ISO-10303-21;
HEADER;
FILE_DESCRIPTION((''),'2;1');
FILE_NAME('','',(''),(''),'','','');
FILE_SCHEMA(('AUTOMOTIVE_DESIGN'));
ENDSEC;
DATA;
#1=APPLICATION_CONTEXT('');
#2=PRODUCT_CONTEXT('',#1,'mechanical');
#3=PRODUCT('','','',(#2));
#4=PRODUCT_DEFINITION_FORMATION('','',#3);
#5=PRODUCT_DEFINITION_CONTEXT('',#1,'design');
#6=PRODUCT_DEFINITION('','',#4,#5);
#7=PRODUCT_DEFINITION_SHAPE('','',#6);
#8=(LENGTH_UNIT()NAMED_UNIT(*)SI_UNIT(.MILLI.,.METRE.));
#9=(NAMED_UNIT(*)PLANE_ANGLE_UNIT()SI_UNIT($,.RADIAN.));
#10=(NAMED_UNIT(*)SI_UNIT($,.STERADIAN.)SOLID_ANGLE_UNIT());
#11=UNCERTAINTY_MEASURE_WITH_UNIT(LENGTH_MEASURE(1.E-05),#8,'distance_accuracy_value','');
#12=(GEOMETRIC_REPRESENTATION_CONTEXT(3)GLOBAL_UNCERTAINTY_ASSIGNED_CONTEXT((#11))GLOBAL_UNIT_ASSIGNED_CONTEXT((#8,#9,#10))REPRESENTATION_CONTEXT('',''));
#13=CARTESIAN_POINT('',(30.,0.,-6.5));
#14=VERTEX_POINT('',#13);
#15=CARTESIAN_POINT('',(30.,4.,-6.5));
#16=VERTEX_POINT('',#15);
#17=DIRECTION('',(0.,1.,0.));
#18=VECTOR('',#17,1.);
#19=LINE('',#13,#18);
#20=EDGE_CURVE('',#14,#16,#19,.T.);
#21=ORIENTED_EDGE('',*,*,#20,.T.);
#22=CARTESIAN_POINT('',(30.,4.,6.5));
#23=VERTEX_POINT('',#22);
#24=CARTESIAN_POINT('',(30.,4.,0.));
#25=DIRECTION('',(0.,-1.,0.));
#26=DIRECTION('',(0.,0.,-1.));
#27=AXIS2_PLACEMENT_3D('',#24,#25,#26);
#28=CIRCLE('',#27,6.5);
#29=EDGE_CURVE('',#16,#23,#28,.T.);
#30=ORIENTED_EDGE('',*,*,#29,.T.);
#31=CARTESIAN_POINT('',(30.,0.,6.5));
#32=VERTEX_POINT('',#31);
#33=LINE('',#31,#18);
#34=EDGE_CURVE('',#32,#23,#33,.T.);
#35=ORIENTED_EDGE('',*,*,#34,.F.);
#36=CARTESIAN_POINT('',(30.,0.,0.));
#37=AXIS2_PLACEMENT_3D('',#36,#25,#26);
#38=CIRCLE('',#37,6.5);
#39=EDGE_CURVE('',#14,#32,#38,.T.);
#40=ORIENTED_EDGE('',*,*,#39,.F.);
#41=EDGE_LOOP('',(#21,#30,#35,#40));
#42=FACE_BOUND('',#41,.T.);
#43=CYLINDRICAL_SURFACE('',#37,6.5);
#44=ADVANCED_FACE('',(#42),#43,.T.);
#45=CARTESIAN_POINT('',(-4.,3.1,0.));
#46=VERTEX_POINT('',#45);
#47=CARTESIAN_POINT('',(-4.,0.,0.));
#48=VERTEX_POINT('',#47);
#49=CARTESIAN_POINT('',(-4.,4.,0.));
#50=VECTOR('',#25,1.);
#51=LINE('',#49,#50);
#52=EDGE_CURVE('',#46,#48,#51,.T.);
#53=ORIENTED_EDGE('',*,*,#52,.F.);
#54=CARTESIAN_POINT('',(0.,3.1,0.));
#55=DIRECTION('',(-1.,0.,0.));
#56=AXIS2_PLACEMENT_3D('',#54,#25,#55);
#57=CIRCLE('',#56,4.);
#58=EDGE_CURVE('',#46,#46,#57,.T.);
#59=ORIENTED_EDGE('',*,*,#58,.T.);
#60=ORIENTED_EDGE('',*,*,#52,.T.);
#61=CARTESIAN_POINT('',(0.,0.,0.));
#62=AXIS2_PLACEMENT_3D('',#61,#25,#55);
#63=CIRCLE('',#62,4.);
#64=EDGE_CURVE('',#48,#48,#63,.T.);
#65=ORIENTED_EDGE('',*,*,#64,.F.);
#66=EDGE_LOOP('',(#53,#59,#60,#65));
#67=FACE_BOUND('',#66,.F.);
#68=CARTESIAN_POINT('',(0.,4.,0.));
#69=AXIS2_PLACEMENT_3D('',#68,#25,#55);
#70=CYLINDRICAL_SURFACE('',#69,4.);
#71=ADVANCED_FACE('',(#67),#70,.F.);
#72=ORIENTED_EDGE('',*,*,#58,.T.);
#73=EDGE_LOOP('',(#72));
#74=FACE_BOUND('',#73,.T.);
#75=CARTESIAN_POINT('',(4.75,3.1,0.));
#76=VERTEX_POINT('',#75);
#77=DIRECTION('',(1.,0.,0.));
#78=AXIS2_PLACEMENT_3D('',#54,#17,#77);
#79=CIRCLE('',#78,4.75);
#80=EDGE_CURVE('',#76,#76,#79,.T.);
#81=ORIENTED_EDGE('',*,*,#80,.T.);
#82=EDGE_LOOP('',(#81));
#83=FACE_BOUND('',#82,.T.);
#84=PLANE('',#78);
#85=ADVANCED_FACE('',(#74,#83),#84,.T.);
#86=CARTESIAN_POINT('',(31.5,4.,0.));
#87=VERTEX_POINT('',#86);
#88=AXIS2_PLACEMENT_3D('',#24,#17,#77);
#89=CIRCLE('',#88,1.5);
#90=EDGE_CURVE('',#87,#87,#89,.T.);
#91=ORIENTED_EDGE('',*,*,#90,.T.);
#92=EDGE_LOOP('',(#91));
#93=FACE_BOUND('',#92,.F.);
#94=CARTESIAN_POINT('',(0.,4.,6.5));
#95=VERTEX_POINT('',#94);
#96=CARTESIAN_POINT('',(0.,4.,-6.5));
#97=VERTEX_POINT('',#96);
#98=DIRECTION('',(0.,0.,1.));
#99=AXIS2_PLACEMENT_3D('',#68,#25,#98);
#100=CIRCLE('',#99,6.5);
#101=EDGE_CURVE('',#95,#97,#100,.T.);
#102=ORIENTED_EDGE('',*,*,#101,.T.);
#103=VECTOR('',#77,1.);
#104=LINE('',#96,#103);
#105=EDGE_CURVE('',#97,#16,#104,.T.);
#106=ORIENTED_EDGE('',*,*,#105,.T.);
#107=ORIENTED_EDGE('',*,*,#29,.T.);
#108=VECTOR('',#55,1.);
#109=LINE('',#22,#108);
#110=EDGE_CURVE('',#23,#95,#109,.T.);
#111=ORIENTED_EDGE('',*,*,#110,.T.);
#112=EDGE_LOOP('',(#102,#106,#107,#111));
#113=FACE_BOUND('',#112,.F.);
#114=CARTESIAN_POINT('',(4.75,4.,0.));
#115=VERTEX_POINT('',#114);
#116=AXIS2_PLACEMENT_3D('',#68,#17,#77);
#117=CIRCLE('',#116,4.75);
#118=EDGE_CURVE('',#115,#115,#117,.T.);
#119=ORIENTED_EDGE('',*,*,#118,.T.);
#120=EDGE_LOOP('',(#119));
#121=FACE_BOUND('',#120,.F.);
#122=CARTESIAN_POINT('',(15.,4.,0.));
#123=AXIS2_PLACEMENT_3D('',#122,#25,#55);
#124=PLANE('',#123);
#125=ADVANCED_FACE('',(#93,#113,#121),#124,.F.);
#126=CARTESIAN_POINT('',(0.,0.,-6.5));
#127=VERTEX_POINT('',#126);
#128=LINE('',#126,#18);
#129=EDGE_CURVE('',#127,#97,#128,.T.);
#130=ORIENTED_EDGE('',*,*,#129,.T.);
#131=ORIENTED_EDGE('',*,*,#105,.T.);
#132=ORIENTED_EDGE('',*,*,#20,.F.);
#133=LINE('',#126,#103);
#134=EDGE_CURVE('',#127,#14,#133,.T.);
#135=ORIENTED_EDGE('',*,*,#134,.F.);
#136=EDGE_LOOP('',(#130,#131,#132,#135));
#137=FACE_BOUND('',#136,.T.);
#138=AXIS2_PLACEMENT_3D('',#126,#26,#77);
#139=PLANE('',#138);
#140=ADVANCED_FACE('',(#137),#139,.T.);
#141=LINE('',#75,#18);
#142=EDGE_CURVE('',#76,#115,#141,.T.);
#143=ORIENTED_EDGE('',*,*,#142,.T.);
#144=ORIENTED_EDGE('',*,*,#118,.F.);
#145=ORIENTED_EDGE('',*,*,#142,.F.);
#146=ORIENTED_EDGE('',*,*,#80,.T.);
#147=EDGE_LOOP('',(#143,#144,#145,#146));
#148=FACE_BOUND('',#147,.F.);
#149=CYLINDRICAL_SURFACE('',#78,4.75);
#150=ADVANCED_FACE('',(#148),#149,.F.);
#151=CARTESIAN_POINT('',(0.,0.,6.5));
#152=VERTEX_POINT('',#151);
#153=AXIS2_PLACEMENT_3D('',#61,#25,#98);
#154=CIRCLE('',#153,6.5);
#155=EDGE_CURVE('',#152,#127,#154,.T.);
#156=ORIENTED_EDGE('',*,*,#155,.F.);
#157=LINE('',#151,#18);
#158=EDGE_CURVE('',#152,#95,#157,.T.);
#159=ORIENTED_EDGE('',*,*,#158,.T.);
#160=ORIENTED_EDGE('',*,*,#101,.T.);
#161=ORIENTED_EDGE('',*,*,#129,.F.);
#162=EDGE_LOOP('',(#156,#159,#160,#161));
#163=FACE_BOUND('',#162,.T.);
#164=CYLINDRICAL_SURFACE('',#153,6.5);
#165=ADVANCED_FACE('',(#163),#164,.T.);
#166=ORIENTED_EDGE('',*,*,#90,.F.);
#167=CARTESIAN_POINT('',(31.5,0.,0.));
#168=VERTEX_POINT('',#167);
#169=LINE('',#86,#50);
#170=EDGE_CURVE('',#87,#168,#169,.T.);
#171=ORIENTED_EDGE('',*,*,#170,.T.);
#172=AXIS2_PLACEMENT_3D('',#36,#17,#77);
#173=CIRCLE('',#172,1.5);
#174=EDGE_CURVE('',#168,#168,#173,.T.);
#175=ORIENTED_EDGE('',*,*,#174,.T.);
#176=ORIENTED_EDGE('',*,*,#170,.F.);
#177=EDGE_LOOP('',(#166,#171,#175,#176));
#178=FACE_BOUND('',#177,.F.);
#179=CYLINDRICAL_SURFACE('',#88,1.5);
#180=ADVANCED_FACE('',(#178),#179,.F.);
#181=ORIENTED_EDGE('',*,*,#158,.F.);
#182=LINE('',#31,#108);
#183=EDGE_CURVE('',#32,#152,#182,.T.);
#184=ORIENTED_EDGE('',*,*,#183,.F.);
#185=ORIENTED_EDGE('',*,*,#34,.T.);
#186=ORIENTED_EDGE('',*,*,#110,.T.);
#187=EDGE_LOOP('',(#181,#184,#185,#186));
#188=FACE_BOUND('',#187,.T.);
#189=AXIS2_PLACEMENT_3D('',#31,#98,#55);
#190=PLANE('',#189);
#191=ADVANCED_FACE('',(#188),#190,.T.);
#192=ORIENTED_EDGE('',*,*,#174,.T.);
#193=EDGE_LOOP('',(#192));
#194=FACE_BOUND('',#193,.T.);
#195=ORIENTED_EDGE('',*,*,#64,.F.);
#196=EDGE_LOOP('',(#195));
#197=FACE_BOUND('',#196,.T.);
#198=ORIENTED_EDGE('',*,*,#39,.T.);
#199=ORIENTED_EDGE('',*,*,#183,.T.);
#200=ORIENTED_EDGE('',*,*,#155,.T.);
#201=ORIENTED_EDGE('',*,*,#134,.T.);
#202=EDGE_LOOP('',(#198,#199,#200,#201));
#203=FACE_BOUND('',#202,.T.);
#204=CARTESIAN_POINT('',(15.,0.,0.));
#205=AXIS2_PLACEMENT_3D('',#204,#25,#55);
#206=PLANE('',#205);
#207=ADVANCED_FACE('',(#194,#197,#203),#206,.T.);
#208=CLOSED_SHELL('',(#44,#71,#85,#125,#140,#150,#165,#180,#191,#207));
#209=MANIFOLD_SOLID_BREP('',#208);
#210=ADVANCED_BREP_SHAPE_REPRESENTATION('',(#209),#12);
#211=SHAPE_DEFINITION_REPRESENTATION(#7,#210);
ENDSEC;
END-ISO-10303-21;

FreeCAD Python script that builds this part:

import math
import FreeCAD as App
import Part
import Sketcher

V = App.Vector
Q = App.Units.Quantity

doc = App.newDocument("Part")
params = doc.addObject("Spreadsheet::Sheet", "Params")
for row, (alias, value) in enumerate([
    ("sketch1_radius", "6.5 mm"),
    ("sketch1_width", "30 mm"),
    ("pad1_length", "4 mm"),
    ("sketch2_diameter", "8 mm"),
    ("hole_diameter", "8 mm"),
    ("hole_depth", "12.4 mm"),
    ("hole_cbore_diameter", "9.5 mm"),
    ("hole_cbore_depth", "0.9 mm"),
    ("sketch3_diameter", "3 mm"),
], start=1):
    params.set(f"A{row}", alias)
    params.set(f"B{row}", "=" + value)
    params.setAlias(f"B{row}", alias)

body = doc.addObject("PartDesign::Body", "Body")

sketch1 = doc.addObject("Sketcher::SketchObject", "Sketch")
body.addObject(sketch1)
sketch1.AttachmentSupport = (doc.XZ_Plane, [""])
sketch1.MapMode = "FlatFace"
sketch1.addGeometry(Part.LineSegment(V(30, -6, 0), V(0, -6, 0)), False)
sketch1.addGeometry(Part.ArcOfCircle(Part.Circle(V(0, 0, 0), V(0, 0, 1), 6), math.radians(90), math.radians(270)), False)
sketch1.addGeometry(Part.LineSegment(V(0, 6, 0), V(30, 6, 0)), False)
sketch1.addGeometry(Part.ArcOfCircle(Part.Circle(V(30, 0, 0), V(0, 0, 1), 6), math.radians(-90), math.radians(90)), False)
sketch1.addConstraint(Sketcher.Constraint("Tangent", 0, 2, 1, 2))
sketch1.addConstraint(Sketcher.Constraint("Tangent", 1, 1, 2, 1))
sketch1.addConstraint(Sketcher.Constraint("Tangent", 2, 2, 3, 2))
sketch1.addConstraint(Sketcher.Constraint("Tangent", 3, 1, 0, 1))
sketch1.addConstraint(Sketcher.Constraint("Horizontal", 0))
sketch1.addConstraint(Sketcher.Constraint("Horizontal", 2))
sketch1.addConstraint(Sketcher.Constraint("Coincident", 1, 3, -1, 1))
sketch1.addConstraint(Sketcher.Constraint("Radius", 1, Q("6.5 mm")))
sketch1.addConstraint(Sketcher.Constraint("DistanceX", 0, 2, 0, 1, Q("30 mm")))
sketch1.setExpression("Constraints[7]", "Params.sketch1_radius")
sketch1.setExpression("Constraints[8]", "Params.sketch1_width")
pad1 = doc.addObject("PartDesign::Pad", "Pad")
body.addObject(pad1)
pad1.Profile = sketch1
pad1.setExpression("Length", "Params.pad1_length")
pad1.Reversed = True

sketch2 = doc.addObject("Sketcher::SketchObject", "Sketch001")
body.addObject(sketch2)
sketch2.AttachmentSupport = (doc.XZ_Plane, [""])
sketch2.MapMode = "FlatFace"
sketch2.AttachmentOffset = App.Placement(V(0, 0, -4), App.Rotation())
sketch2.addGeometry(Part.Circle(V(0, 0, 0), V(0, 0, 1), 4), False)
sketch2.addConstraint(Sketcher.Constraint("Coincident", 0, 3, -1, 1))
sketch2.addConstraint(Sketcher.Constraint("Diameter", 0, Q("8 mm")))
sketch2.setExpression("Constraints[1]", "Params.sketch2_diameter")
doc.recompute()
hole = doc.addObject("PartDesign::Hole", "Hole")
body.addObject(hole)
hole.Profile = sketch2
hole.ThreadType = "None"
hole.setExpression("Diameter", "Params.hole_diameter")
hole.DepthType = "Dimension"
hole.setExpression("Depth", "Params.hole_depth")
hole.DrillPoint = "Angled"
hole.DrillPointAngle = 118
hole.HoleCutType = "Counterbore"
hole.setExpression("HoleCutDiameter", "Params.hole_cbore_diameter")
hole.setExpression("HoleCutDepth", "Params.hole_cbore_depth")
hole.Reversed = True

sketch3 = doc.addObject("Sketcher::SketchObject", "Sketch002")
body.addObject(sketch3)
sketch3.AttachmentSupport = (doc.XZ_Plane, [""])
sketch3.MapMode = "FlatFace"
sketch3.AttachmentOffset = App.Placement(V(0, 0, -4), App.Rotation())
sketch3.addGeometry(Part.Circle(V(30, 0, 0), V(0, 0, 1), 1.5), False)
sketch3.addConstraint(Sketcher.Constraint("PointOnObject", 0, 3, -1))
sketch3.addConstraint(Sketcher.Constraint("Diameter", 0, Q("3 mm")))
sketch3.addConstraint(Sketcher.Constraint("DistanceX", -1, 1, 0, 3, Q("30 mm")))
sketch3.setExpression("Constraints[1]", "Params.sketch3_diameter")
pocket1 = doc.addObject("PartDesign::Pocket", "Pocket")
body.addObject(pocket1)
pocket1.Profile = sketch3
pocket1.Type = "ThroughAll"
pocket1.Midplane = True

doc.recompute()
